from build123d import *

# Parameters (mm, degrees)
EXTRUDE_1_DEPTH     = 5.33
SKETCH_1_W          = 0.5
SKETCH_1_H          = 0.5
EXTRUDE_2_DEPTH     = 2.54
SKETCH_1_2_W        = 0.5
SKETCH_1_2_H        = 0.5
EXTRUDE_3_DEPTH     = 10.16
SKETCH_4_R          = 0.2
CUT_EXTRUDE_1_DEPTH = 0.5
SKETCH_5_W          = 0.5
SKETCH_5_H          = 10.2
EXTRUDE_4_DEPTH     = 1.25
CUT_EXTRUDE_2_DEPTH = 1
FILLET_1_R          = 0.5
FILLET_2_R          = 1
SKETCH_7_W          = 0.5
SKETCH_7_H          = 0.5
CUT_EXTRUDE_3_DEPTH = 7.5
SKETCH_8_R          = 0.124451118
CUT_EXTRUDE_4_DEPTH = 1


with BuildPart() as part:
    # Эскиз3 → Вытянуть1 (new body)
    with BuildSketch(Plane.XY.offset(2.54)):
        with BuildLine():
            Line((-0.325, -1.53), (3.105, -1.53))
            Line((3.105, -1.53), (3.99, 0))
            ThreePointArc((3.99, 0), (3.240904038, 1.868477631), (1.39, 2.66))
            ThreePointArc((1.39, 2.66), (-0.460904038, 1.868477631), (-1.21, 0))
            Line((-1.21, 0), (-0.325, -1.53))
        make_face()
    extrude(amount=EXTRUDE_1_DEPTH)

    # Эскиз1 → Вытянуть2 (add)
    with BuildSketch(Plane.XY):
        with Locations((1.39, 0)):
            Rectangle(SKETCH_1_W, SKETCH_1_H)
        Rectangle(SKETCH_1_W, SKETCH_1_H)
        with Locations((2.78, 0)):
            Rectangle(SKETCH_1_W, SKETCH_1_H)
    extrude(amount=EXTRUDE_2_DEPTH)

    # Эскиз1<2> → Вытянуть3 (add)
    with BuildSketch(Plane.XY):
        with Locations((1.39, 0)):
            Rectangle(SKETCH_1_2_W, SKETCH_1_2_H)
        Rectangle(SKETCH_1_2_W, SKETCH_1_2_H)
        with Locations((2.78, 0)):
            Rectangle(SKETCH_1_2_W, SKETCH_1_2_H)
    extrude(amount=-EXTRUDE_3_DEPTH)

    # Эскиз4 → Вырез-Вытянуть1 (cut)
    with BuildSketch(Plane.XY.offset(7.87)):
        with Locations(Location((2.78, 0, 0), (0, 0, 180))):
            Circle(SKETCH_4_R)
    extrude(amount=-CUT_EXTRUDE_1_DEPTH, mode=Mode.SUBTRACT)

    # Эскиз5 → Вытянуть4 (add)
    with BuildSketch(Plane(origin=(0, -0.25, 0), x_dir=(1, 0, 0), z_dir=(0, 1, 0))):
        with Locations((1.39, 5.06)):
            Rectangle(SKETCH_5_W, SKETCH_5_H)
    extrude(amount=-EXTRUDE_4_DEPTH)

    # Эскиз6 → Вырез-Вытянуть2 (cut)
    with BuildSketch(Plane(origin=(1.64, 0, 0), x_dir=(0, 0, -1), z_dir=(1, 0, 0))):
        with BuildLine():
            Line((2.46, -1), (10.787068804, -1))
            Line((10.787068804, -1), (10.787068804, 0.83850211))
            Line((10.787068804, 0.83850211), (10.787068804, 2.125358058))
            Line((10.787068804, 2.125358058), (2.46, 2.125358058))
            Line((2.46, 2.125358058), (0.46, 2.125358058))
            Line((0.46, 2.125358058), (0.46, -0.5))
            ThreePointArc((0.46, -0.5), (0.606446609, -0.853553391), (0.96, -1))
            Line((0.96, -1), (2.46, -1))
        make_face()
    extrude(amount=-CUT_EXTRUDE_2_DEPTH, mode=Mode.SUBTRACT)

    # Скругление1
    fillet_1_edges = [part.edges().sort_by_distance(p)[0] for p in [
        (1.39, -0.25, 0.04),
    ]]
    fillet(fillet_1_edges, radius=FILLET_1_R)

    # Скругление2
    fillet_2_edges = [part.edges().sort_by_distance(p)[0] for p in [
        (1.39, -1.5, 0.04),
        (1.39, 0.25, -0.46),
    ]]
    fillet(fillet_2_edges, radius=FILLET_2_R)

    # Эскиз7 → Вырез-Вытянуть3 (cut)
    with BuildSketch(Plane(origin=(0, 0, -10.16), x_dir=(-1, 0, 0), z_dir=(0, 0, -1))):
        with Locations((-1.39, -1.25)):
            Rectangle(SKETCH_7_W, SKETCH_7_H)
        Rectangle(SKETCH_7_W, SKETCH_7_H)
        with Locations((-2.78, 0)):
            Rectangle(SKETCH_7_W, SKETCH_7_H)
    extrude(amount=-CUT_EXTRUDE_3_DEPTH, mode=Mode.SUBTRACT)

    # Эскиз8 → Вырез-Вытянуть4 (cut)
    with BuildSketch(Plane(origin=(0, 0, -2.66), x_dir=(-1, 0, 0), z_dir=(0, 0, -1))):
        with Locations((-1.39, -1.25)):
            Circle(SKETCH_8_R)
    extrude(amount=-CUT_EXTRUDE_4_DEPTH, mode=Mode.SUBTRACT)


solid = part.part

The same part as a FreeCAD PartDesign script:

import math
import FreeCAD as App
import Part
import Sketcher

V = App.Vector


def edges_at(feature, points):
    """Names of the edges that pass closest to the given points."""
    edges = feature.Shape.Edges
    near = lambda p: min(range(len(edges)), key=lambda i: edges[i].distToShape(Part.Vertex(*p))[0])
    return sorted({f"Edge{near(p) + 1}" for p in points})


def add_polygon(sketch, points):
    """Adds a closed chain of lines whose ends are joined by coincident constraints."""
    first, n = sketch.GeometryCount, len(points)
    for a, b in zip(points, points[1:] + points[:1]):
        sketch.addGeometry(Part.LineSegment(App.Vector(*a, 0), App.Vector(*b, 0)), False)
    for i in range(n):
        sketch.addConstraint(Sketcher.Constraint("Coincident", first + i, 2, first + (i + 1) % n, 1))

doc = App.newDocument("Part")
body = doc.addObject("PartDesign::Body", "Body")

# Sketch on XY plane
sketch1 = body.newObject("Sketcher::SketchObject", "Sketch")
sketch1.AttachmentSupport = (doc.getObject("XY_Plane"), [""])
sketch1.MapMode = "FlatFace"
sketch1.AttachmentOffset = App.Placement(V(0, 0, 2.54), App.Rotation())
sketch1.addGeometry(Part.LineSegment(V(-0.325, -1.53, 0), V(3.105, -1.53, 0)), False)
sketch1.addGeometry(Part.LineSegment(V(3.105, -1.53, 0), V(3.99, 0, 0)), False)
sketch1.addGeometry(Part.ArcOfCircle(Part.Circle(V(1.36, 0.03, 0), V(0, 0, 1), 2.630171), math.radians(-0.653536), math.radians(89.346464)), False)
sketch1.addGeometry(Part.ArcOfCircle(Part.Circle(V(1.42, 0.03, 0), V(0, 0, 1), 2.630171), math.radians(90.653536), math.radians(180.653536)), False)
sketch1.addGeometry(Part.LineSegment(V(-1.21, 0, 0), V(-0.325, -1.53, 0)), False)
sketch1.addConstraint(Sketcher.Constraint("Coincident", 0, 2, 1, 1))
sketch1.addConstraint(Sketcher.Constraint("Coincident", 1, 2, 2, 1))
sketch1.addConstraint(Sketcher.Constraint("Coincident", 2, 2, 3, 1))
sketch1.addConstraint(Sketcher.Constraint("Coincident", 3, 2, 4, 1))
sketch1.addConstraint(Sketcher.Constraint("Coincident", 4, 2, 0, 1))
sketch1.addConstraint(Sketcher.Constraint("Horizontal", 0))
sketch1.addConstraint(Sketcher.Constraint("Equal", 2, 3))
sketch1.addConstraint(Sketcher.Constraint("PointOnObject", 1, 2, -1))
sketch1.addConstraint(Sketcher.Constraint("PointOnObject", 3, 2, -1))
sketch1.addConstraint(Sketcher.Constraint("Horizontal", 2, 3, 3, 3))
sketch1.addConstraint(Sketcher.Constraint("Equal", 1, 4))
sketch1.addConstraint(Sketcher.Constraint("DistanceX", 0, 1, 0, 2, 3.43))
sketch1.addConstraint(Sketcher.Constraint("DistanceX", 2, 2, 1, 2, 2.6))
sketch1.addConstraint(Sketcher.Constraint("DistanceX", -1, 1, 2, 3, 1.36))
sketch1.addConstraint(Sketcher.Constraint("DistanceY", -1, 1, 2, 3, 0.03))
sketch1.addConstraint(Sketcher.Constraint("DistanceX", -1, 1, 3, 3, 1.42))
sketch1.addConstraint(Sketcher.Constraint("DistanceY", 0, 2, -1, 1, 1.53))
pad1 = body.newObject("PartDesign::Pad", "Pad")
pad1.Profile = sketch1
pad1.Length = 5.33

# Sketch on XY plane
sketch2 = body.newObject("Sketcher::SketchObject", "Sketch001")
sketch2.AttachmentSupport = (doc.getObject("XY_Plane"), [""])
sketch2.MapMode = "FlatFace"
add_polygon(sketch2, [(1.14, 0.25), (1.14, -0.25), (1.64, -0.25), (1.64, 0.25)])  # lines 0-3
add_polygon(sketch2, [(-0.25, 0.25), (-0.25, -0.25), (0.25, -0.25), (0.25, 0.25)])  # lines 4-7
add_polygon(sketch2, [(2.53, 0.25), (2.53, -0.25), (3.03, -0.25), (3.03, 0.25)])  # lines 8-11
sketch2.addConstraint(Sketcher.Constraint("Vertical", 0))
sketch2.addConstraint(Sketcher.Constraint("Horizontal", 1))
sketch2.addConstraint(Sketcher.Constraint("Vertical", 2))
sketch2.addConstraint(Sketcher.Constraint("Horizontal", 3))
sketch2.addConstraint(Sketcher.Constraint("Vertical", 4))
sketch2.addConstraint(Sketcher.Constraint("Horizontal", 5))
sketch2.addConstraint(Sketcher.Constraint("Vertical", 6))
sketch2.addConstraint(Sketcher.Constraint("Horizontal", 7))
sketch2.addConstraint(Sketcher.Constraint("Vertical", 8))
sketch2.addConstraint(Sketcher.Constraint("Horizontal", 9))
sketch2.addConstraint(Sketcher.Constraint("Vertical", 10))
sketch2.addConstraint(Sketcher.Constraint("Horizontal", 11))
sketch2.addConstraint(Sketcher.Constraint("Symmetric", 4, 2, 6, 2, -1, 1))
sketch2.addConstraint(Sketcher.Constraint("Horizontal", 1, 2, 4, 2))
sketch2.addConstraint(Sketcher.Constraint("Horizontal", 3, 2, 6, 2))
sketch2.addConstraint(Sketcher.Constraint("Horizontal", 5, 2, 8, 2))
sketch2.addConstraint(Sketcher.Constraint("Horizontal", 7, 2, 10, 2))
sketch2.addConstraint(Sketcher.Constraint("Equal", 3, 5))
sketch2.addConstraint(Sketcher.Constraint("Equal", 7, 9))
sketch2.addConstraint(Sketcher.Constraint("Equal", 11, 0))
sketch2.addConstraint(Sketcher.Constraint("DistanceX", 1, 1, 1, 2, 0.5))
sketch2.addConstraint(Sketcher.Constraint("DistanceX", -1, 1, 0, 2, 1.14))
sketch2.addConstraint(Sketcher.Constraint("DistanceX", -1, 1, 8, 2, 2.53))
pad2 = body.newObject("PartDesign::Pad", "Pad001")
pad2.Profile = sketch2
pad2.Length = 2.54

# Sketch on XY plane
sketch3 = body.newObject("Sketcher::SketchObject", "Sketch002")
sketch3.AttachmentSupport = (doc.getObject("XY_Plane"), [""])
sketch3.MapMode = "FlatFace"
add_polygon(sketch3, [(1.14, 0.25), (1.14, -0.25), (1.64, -0.25), (1.64, 0.25)])  # lines 0-3
add_polygon(sketch3, [(-0.25, 0.25), (-0.25, -0.25), (0.25, -0.25), (0.25, 0.25)])  # lines 4-7
add_polygon(sketch3, [(2.53, 0.25), (2.53, -0.25), (3.03, -0.25), (3.03, 0.25)])  # lines 8-11
sketch3.addConstraint(Sketcher.Constraint("Vertical", 0))
sketch3.addConstraint(Sketcher.Constraint("Horizontal", 1))
sketch3.addConstraint(Sketcher.Constraint("Vertical", 2))
sketch3.addConstraint(Sketcher.Constraint("Horizontal", 3))
sketch3.addConstraint(Sketcher.Constraint("Vertical", 4))
sketch3.addConstraint(Sketcher.Constraint("Horizontal", 5))
sketch3.addConstraint(Sketcher.Constraint("Vertical", 6))
sketch3.addConstraint(Sketcher.Constraint("Horizontal", 7))
sketch3.addConstraint(Sketcher.Constraint("Vertical", 8))
sketch3.addConstraint(Sketcher.Constraint("Horizontal", 9))
sketch3.addConstraint(Sketcher.Constraint("Vertical", 10))
sketch3.addConstraint(Sketcher.Constraint("Horizontal", 11))
sketch3.addConstraint(Sketcher.Constraint("Symmetric", 4, 2, 6, 2, -1, 1))
sketch3.addConstraint(Sketcher.Constraint("Horizontal", 1, 2, 4, 2))
sketch3.addConstraint(Sketcher.Constraint("Horizontal", 3, 2, 6, 2))
sketch3.addConstraint(Sketcher.Constraint("Horizontal", 5, 2, 8, 2))
sketch3.addConstraint(Sketcher.Constraint("Horizontal", 7, 2, 10, 2))
sketch3.addConstraint(Sketcher.Constraint("Equal", 3, 5))
sketch3.addConstraint(Sketcher.Constraint("Equal", 7, 9))
sketch3.addConstraint(Sketcher.Constraint("Equal", 11, 0))
sketch3.addConstraint(Sketcher.Constraint("DistanceX", 1, 1, 1, 2, 0.5))
sketch3.addConstraint(Sketcher.Constraint("DistanceX", -1, 1, 0, 2, 1.14))
sketch3.addConstraint(Sketcher.Constraint("DistanceX", -1, 1, 8, 2, 2.53))
pad3 = body.newObject("PartDesign::Pad", "Pad002")
pad3.Profile = sketch3
pad3.Length = 10.16
pad3.Reversed = True

# Sketch on XY plane
sketch4 = body.newObject("Sketcher::SketchObject", "Sketch003")
sketch4.AttachmentSupport = (doc.getObject("XY_Plane"), [""])
sketch4.MapMode = "FlatFace"
sketch4.AttachmentOffset = App.Placement(V(0, 0, 7.87), App.Rotation())
sketch4.addGeometry(Part.Circle(V(2.78, 0, 0), V(0, 0, 1), 0.2), False)
sketch4.addConstraint(Sketcher.Constraint("PointOnObject", 0, 3, -1))
sketch4.addConstraint(Sketcher.Constraint("Diameter", 0, 0.4))
sketch4.addConstraint(Sketcher.Constraint("DistanceX", -1, 1, 0, 3, 2.78))
pocket1 = body.newObject("PartDesign::Pocket", "Pocket")
pocket1.Profile = sketch4
pocket1.Length = 0.5

# Sketch on XZ plane
sketch5 = body.newObject("Sketcher::SketchObject", "Sketch004")
sketch5.AttachmentSupport = (doc.getObject("XZ_Plane"), [""])
sketch5.MapMode = "FlatFace"
sketch5.AttachmentOffset = App.Placement(V(0, 0, 0.25), App.Rotation())
add_polygon(sketch5, [(1.14, -10.16), (1.14, 0.04), (1.64, 0.04), (1.64, -10.16)])  # lines 0-3
sketch5.addConstraint(Sketcher.Constraint("Vertical", 0))
sketch5.addConstraint(Sketcher.Constraint("Horizontal", 1))
sketch5.addConstraint(Sketcher.Constraint("Vertical", 2))
sketch5.addConstraint(Sketcher.Constraint("Horizontal", 3))
sketch5.addConstraint(Sketcher.Constraint("DistanceX", 1, 1, 1, 2, 0.5))
sketch5.addConstraint(Sketcher.Constraint("DistanceY", 0, 1, 0, 2, 10.2))
sketch5.addConstraint(Sketcher.Constraint("DistanceX", -1, 1, 0, 2, 1.14))
sketch5.addConstraint(Sketcher.Constraint("DistanceY", -1, 1, 0, 2, 0.04))
pad4 = body.newObject("PartDesign::Pad", "Pad003")
pad4.Profile = sketch5
pad4.Length = 1.25

# Sketch on YZ plane
sketch6 = body.newObject("Sketcher::SketchObject", "Sketch005")
sketch6.AttachmentSupport = (doc.getObject("YZ_Plane"), [""])
sketch6.MapMode = "FlatFace"
sketch6.AttachmentOffset = App.Placement(V(0, 0, 1.64), App.Rotation())
sketch6.addGeometry(Part.LineSegment(V(-1, -10.787069, 0), V(2.125358, -10.787069, 0)), False)
sketch6.addGeometry(Part.LineSegment(V(2.125358, -10.787069, 0), V(2.125358, -0.46, 0)), False)
sketch6.addGeometry(Part.LineSegment(V(2.125358, -0.46, 0), V(-0.5, -0.46, 0)), False)
sketch6.addGeometry(Part.ArcOfCircle(Part.Circle(V(-0.5, -0.96, 0), V(0, 0, 1), 0.5), math.radians(90), math.radians(180)), False)
sketch6.addGeometry(Part.LineSegment(V(-1, -0.96, 0), V(-1, -10.787069, 0)), False)
sketch6.addConstraint(Sketcher.Constraint("Coincident", 0, 2, 1, 1))
sketch6.addConstraint(Sketcher.Constraint("Coincident", 1, 2, 2, 1))
sketch6.addConstraint(Sketcher.Constraint("Tangent", 2, 2, 3, 1))
sketch6.addConstraint(Sketcher.Constraint("Tangent", 3, 2, 4, 1))
sketch6.addConstraint(Sketcher.Constraint("Coincident", 4, 2, 0, 1))
sketch6.addConstraint(Sketcher.Constraint("Horizontal", 0))
sketch6.addConstraint(Sketcher.Constraint("Vertical", 1))
sketch6.addConstraint(Sketcher.Constraint("Horizontal", 2))
sketch6.addConstraint(Sketcher.Constraint("Vertical", 4))
sketch6.addConstraint(Sketcher.Constraint("Radius", 3, 0.5))
sketch6.addConstraint(Sketcher.Constraint("DistanceX", 3, 2, -1, 1, 1.0))
sketch6.addConstraint(Sketcher.Constraint("DistanceY", 3, 3, -1, 1, 0.96))
sketch6.addConstraint(Sketcher.Constraint("DistanceX", 0, 1, 0, 2, 3.125358))
sketch6.addConstraint(Sketcher.Constraint("DistanceY", 1, 1, 1, 2, 10.327069))
pocket2 = body.newObject("PartDesign::Pocket", "Pocket001")
pocket2.Profile = sketch6
pocket2.Length = 1
doc.recompute()

fillet = body.newObject("PartDesign::Fillet", "Fillet")
fillet.Base = (pocket2, edges_at(pocket2, [(1.39, -0.25, 0.04)]))
fillet.Radius = 0.5
doc.recompute()

fillet2 = body.newObject("PartDesign::Fillet", "Fillet001")
fillet2.Base = (fillet, edges_at(fillet, [(1.39, -1.5, 0.04), (1.39, 0.25, -0.46)]))
fillet2.Radius = 1

# Sketch on XY plane
sketch7 = body.newObject("Sketcher::SketchObject", "Sketch006")
sketch7.AttachmentSupport = (doc.getObject("XY_Plane"), [""])
sketch7.MapMode = "FlatFace"
sketch7.AttachmentOffset = App.Placement(V(0, 0, -10.16), App.Rotation())
add_polygon(sketch7, [(1.64, -1), (1.64, -1.5), (1.14, -1.5), (1.14, -1)])  # lines 0-3
add_polygon(sketch7, [(0.25, 0.25), (0.25, -0.25), (-0.25, -0.25), (-0.25, 0.25)])  # lines 4-7
add_polygon(sketch7, [(3.03, 0.25), (3.03, -0.25), (2.53, -0.25), (2.53, 0.25)])  # lines 8-11
sketch7.addConstraint(Sketcher.Constraint("Vertical", 0))
sketch7.addConstraint(Sketcher.Constraint("Horizontal", 1))
sketch7.addConstraint(Sketcher.Constraint("Vertical", 2))
sketch7.addConstraint(Sketcher.Constraint("Horizontal", 3))
sketch7.addConstraint(Sketcher.Constraint("Vertical", 4))
sketch7.addConstraint(Sketcher.Constraint("Horizontal", 5))
sketch7.addConstraint(Sketcher.Constraint("Vertical", 6))
sketch7.addConstraint(Sketcher.Constraint("Horizontal", 7))
sketch7.addConstraint(Sketcher.Constraint("Vertical", 8))
sketch7.addConstraint(Sketcher.Constraint("Horizontal", 9))
sketch7.addConstraint(Sketcher.Constraint("Vertical", 10))
sketch7.addConstraint(Sketcher.Constraint("Horizontal", 11))
sketch7.addConstraint(Sketcher.Constraint("Symmetric", 4, 2, 6, 2, -1, 1))
sketch7.addConstraint(Sketcher.Constraint("Horizontal", 5, 2, 8, 2))
sketch7.addConstraint(Sketcher.Constraint("Horizontal", 7, 2, 10, 2))
sketch7.addConstraint(Sketcher.Constraint("Equal", 3, 5))
sketch7.addConstraint(Sketcher.Constraint("Equal", 7, 9))
sketch7.addConstraint(Sketcher.Constraint("Equal", 11, 0))
sketch7.addConstraint(Sketcher.Constraint("Equal", 2, 4))
sketch7.addConstraint(Sketcher.Constraint("DistanceX", 1, 2, 1, 1, 0.5))
sketch7.addConstraint(Sketcher.Constraint("DistanceY", 2, 2, -1, 1, 1.0))
sketch7.addConstraint(Sketcher.Constraint("DistanceX", -1, 1, 0, 2, 1.64))
sketch7.addConstraint(Sketcher.Constraint("DistanceX", -1, 1, 8, 2, 3.03))
pocket3 = body.newObject("PartDesign::Pocket", "Pocket002")
pocket3.Profile = sketch7
pocket3.Length = 7.5
pocket3.Reversed = True

# Sketch on XY plane
sketch8 = body.newObject("Sketcher::SketchObject", "Sketch007")
sketch8.AttachmentSupport = (doc.getObject("XY_Plane"), [""])
sketch8.MapMode = "FlatFace"
sketch8.AttachmentOffset = App.Placement(V(0, 0, -2.66), App.Rotation())
sketch8.addGeometry(Part.Circle(V(1.39, -1.25, 0), V(0, 0, 1), 0.124451), False)
sketch8.addConstraint(Sketcher.Constraint("DistanceX", -1, 1, 0, 3, 1.39))
sketch8.addConstraint(Sketcher.Constraint("DistanceY", 0, 3, -1, 1, 1.25))
sketch8.addConstraint(Sketcher.Constraint("Diameter", 0, 0.248902))
pocket4 = body.newObject("PartDesign::Pocket", "Pocket003")
pocket4.Profile = sketch8
pocket4.Length = 1
pocket4.Reversed = True

doc.recompute()
